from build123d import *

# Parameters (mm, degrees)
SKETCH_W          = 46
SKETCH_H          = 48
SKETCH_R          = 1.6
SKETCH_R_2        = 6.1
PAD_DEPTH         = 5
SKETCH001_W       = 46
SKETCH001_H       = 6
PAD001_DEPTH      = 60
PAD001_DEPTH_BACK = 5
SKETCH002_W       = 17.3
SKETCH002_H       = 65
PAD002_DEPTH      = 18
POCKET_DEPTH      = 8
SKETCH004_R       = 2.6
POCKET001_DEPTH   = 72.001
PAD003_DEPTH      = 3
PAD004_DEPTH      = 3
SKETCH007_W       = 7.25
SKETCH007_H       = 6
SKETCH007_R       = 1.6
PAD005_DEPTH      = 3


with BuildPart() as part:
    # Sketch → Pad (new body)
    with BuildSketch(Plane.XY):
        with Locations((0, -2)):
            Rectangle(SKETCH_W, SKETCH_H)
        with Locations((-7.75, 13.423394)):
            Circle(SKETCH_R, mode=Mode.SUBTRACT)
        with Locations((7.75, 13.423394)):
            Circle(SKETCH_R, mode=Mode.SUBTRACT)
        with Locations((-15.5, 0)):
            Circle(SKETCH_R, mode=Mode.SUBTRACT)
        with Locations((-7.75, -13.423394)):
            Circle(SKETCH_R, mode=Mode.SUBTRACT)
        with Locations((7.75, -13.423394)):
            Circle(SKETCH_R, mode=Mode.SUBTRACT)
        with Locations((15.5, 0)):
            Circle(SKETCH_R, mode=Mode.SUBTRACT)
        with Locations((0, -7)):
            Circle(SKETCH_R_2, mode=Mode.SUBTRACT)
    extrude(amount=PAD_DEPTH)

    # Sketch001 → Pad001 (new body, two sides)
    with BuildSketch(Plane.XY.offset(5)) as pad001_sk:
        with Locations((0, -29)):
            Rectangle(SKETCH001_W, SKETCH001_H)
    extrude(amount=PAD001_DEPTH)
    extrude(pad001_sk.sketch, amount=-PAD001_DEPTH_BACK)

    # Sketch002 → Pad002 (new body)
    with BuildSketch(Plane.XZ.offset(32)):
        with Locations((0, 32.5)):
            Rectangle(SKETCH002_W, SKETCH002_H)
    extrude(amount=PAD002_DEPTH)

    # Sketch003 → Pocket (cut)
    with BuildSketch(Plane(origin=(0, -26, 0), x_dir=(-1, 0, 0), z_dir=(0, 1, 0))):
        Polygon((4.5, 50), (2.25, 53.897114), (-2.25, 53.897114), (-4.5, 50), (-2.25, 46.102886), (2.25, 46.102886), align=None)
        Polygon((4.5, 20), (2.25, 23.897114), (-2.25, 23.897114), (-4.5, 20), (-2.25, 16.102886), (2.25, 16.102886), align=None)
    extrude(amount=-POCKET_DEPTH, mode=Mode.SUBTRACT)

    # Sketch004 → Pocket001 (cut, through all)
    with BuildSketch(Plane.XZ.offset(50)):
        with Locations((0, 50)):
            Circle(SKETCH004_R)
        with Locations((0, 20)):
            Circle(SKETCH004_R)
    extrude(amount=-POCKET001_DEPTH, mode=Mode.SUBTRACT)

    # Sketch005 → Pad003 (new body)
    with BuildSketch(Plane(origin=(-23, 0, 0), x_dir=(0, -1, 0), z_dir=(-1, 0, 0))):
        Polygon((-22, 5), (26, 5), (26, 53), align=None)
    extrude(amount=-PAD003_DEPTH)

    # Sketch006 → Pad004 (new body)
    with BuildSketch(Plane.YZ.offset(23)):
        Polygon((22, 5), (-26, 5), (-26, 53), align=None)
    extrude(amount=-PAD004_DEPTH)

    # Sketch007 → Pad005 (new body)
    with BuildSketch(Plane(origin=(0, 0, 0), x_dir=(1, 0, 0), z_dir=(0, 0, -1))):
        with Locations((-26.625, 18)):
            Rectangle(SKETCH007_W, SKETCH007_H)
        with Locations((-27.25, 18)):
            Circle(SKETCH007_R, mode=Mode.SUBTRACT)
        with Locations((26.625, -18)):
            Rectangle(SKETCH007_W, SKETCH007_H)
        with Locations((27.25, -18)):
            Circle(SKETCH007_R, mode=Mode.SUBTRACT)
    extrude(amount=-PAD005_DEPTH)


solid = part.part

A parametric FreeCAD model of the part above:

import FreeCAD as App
import Part
import Sketcher

V = App.Vector
Q = App.Units.Quantity

doc = App.newDocument("Part")
params = doc.addObject("Spreadsheet::Sheet", "Params")
for row, (alias, value) in enumerate([
    ("sketch1_diameter", "3.2 mm"),
    ("sketch1_diameter2", "12.2 mm"),
    ("sketch1_width", "46 mm"),
    ("sketch1_height", "48 mm"),
    ("pad1_length", "5 mm"),
    ("sketch2_width", "46 mm"),
    ("sketch2_height", "6 mm"),
    ("pad2_length", "60 mm"),
    ("pad2_length2", "5 mm"),
    ("sketch3_height", "65 mm"),
    ("sketch3_width", "17.3 mm"),
    ("pad3_length", "18 mm"),
    ("sketch4_width", "4.5 mm"),
    ("pocket1_length", "8 mm"),
    ("sketch5_diameter", "5.2 mm"),
    ("sketch6_width", "48 mm"),
    ("pad4_length", "3 mm"),
    ("sketch7_width", "48 mm"),
    ("pad5_length", "3 mm"),
    ("sketch8_diameter", "3.2 mm"),
    ("sketch8_height", "6 mm"),
    ("sketch8_width", "7.25 mm"),
    ("pad6_length", "3 mm"),
], start=1):
    params.set(f"A{row}", alias)
    params.set(f"B{row}", "=" + value)
    params.setAlias(f"B{row}", alias)

body = doc.addObject("PartDesign::Body", "Body")

# Sketch on XY plane
sketch1 = body.newObject("Sketcher::SketchObject", "Sketch")
sketch1.AttachmentSupport = (doc.getObject("XY_Plane"), [""])
sketch1.MapMode = "FlatFace"
sketch1.addGeometry([
    Part.LineSegment(V(-23, 22, 0), V(-23, -26, 0)),  # 0
    Part.LineSegment(V(-23, -26, 0), V(23, -26, 0)),  # 1
    Part.LineSegment(V(23, -26, 0), V(23, 22, 0)),  # 2
    Part.LineSegment(V(23, 22, 0), V(-23, 22, 0)),  # 3
    Part.Circle(V(-7.75, -13.423394, 0), V(0, 0, 1), 1.6),  # 4
    Part.Circle(V(7.75, -13.423394, 0), V(0, 0, 1), 1.6),  # 5
    Part.Circle(V(0, -7, 0), V(0, 0, 1), 6.1),  # 6
    Part.Circle(V(-15.5, 0, 0), V(0, 0, 1), 1.6),  # 7
    Part.Circle(V(-7.75, 13.423394, 0), V(0, 0, 1), 1.6),  # 8
    Part.Circle(V(15.5, 0, 0), V(0, 0, 1), 1.6),  # 9
    Part.Circle(V(7.75, 13.423394, 0), V(0, 0, 1), 1.6),  # 10
], False)
sketch1.addConstraint([
    Sketcher.Constraint("Coincident", 0, 2, 1, 1),
    Sketcher.Constraint("Coincident", 1, 2, 2, 1),
    Sketcher.Constraint("Coincident", 2, 2, 3, 1),
    Sketcher.Constraint("Coincident", 3, 2, 0, 1),
    Sketcher.Constraint("Vertical", 0),
    Sketcher.Constraint("Horizontal", 1),
    Sketcher.Constraint("Vertical", 2),
    Sketcher.Constraint("Horizontal", 3),
    Sketcher.Constraint("Equal", 4, 5),
    Sketcher.Constraint("Equal", 5, 7),
    Sketcher.Constraint("Equal", 7, 8),
    Sketcher.Constraint("Equal", 8, 9),
    Sketcher.Constraint("Equal", 9, 10),
    Sketcher.Constraint("Symmetric", 5, 3, 8, 3, -1, 1),
    Sketcher.Constraint("Symmetric", 7, 3, 9, 3, -1, 1),
    Sketcher.Constraint("Symmetric", 4, 3, 10, 3, -1, 1),
    Sketcher.Constraint("Symmetric", 4, 3, 5, 3, -2),
    Sketcher.Constraint("PointOnObject", 6, 3, -2),
    Sketcher.Constraint("PointOnObject", 7, 3, -1),
    Sketcher.Constraint("Diameter", 4, 3.2),
    Sketcher.Constraint("Diameter", 6, 12.2),
    Sketcher.Constraint("DistanceX", 1, 1, 1, 2, 46.0),
    Sketcher.Constraint("DistanceY", 0, 2, 0, 1, 48.0),
    Sketcher.Constraint("DistanceY", 6, 3, -1, 1, 7.0),
    Sketcher.Constraint("DistanceX", 0, 2, -1, 1, 23.0),
    Sketcher.Constraint("DistanceY", 0, 2, -1, 1, 26.0),
    Sketcher.Constraint("DistanceX", 7, 3, 9, 3, 31.0),
    Sketcher.Constraint("DistanceX", 4, 3, 5, 3, 15.5),
    Sketcher.Constraint("DistanceY", 4, 3, 8, 3, 26.846788),
])
sketch1.setExpression("Constraints[19]", "Params.sketch1_diameter")
sketch1.setExpression("Constraints[20]", "Params.sketch1_diameter2")
sketch1.setExpression("Constraints[21]", "Params.sketch1_width")
sketch1.setExpression("Constraints[22]", "Params.sketch1_height")
pad1 = body.newObject("PartDesign::Pad", "Pad")
pad1.Profile = sketch1
pad1.setExpression("Length", "Params.pad1_length")

# Sketch on XY plane
sketch2 = body.newObject("Sketcher::SketchObject", "Sketch001")
sketch2.AttachmentSupport = (doc.getObject("XY_Plane"), [""])
sketch2.MapMode = "FlatFace"
sketch2.AttachmentOffset = App.Placement(V(0, 0, 5), App.Rotation())
sketch2.addGeometry([
    Part.LineSegment(V(-23, -26, 0), V(-23, -32, 0)),
    Part.LineSegment(V(-23, -32, 0), V(23, -32, 0)),
    Part.LineSegment(V(23, -32, 0), V(23, -26, 0)),
    Part.LineSegment(V(23, -26, 0), V(-23, -26, 0)),
], False)
sketch2.addConstraint([
    Sketcher.Constraint("Coincident", 0, 2, 1, 1),
    Sketcher.Constraint("Coincident", 1, 2, 2, 1),
    Sketcher.Constraint("Coincident", 2, 2, 3, 1),
    Sketcher.Constraint("Coincident", 3, 2, 0, 1),
    Sketcher.Constraint("Vertical", 0),
    Sketcher.Constraint("Horizontal", 1),
    Sketcher.Constraint("Vertical", 2),
    Sketcher.Constraint("Horizontal", 3),
    Sketcher.Constraint("DistanceX", 1, 1, 1, 2, 46.0),
    Sketcher.Constraint("DistanceY", 0, 2, 0, 1, 6.0),
    Sketcher.Constraint("DistanceX", 0, 2, -1, 1, 23.0),
    Sketcher.Constraint("DistanceY", 0, 2, -1, 1, 32.0),
])
sketch2.setExpression("Constraints[8]", "Params.sketch2_width")
sketch2.setExpression("Constraints[9]", "Params.sketch2_height")
pad2 = body.newObject("PartDesign::Pad", "Pad001")
pad2.Profile = sketch2
pad2.Type = "TwoLengths"
pad2.setExpression("Length", "Params.pad2_length")
pad2.setExpression("Length2", "Params.pad2_length2")

# Sketch on XZ plane
sketch3 = body.newObject("Sketcher::SketchObject", "Sketch002")
sketch3.AttachmentSupport = (doc.getObject("XZ_Plane"), [""])
sketch3.MapMode = "FlatFace"
sketch3.AttachmentOffset = App.Placement(V(0, 0, 32), App.Rotation())
sketch3.addGeometry([
    Part.LineSegment(V(-8.65, 65, 0), V(-8.65, 0, 0)),
    Part.LineSegment(V(-8.65, 0, 0), V(8.65, 0, 0)),
    Part.LineSegment(V(8.65, 0, 0), V(8.65, 65, 0)),
    Part.LineSegment(V(8.65, 65, 0), V(-8.65, 65, 0)),
], False)
sketch3.addConstraint([
    Sketcher.Constraint("Coincident", 0, 2, 1, 1),
    Sketcher.Constraint("Coincident", 1, 2, 2, 1),
    Sketcher.Constraint("Coincident", 2, 2, 3, 1),
    Sketcher.Constraint("Coincident", 3, 2, 0, 1),
    Sketcher.Constraint("Vertical", 0),
    Sketcher.Constraint("Horizontal", 1),
    Sketcher.Constraint("Vertical", 2),
    Sketcher.Constraint("Horizontal", 3),
    Sketcher.Constraint("Symmetric", 0, 2, 1, 2, -1, 1),
    Sketcher.Constraint("DistanceY", 0, 2, 0, 1, 65.0),
    Sketcher.Constraint("DistanceX", 1, 1, 1, 2, 17.3),
])
sketch3.setExpression("Constraints[9]", "Params.sketch3_height")
sketch3.setExpression("Constraints[10]", "Params.sketch3_width")
pad3 = body.newObject("PartDesign::Pad", "Pad002")
pad3.Profile = sketch3
pad3.setExpression("Length", "Params.pad3_length")

# Sketch on XZ plane
sketch4 = body.newObject("Sketcher::SketchObject", "Sketch003")
sketch4.AttachmentSupport = (doc.getObject("XZ_Plane"), [""])
sketch4.MapMode = "FlatFace"
sketch4.AttachmentOffset = App.Placement(V(0, 0, 26), App.Rotation())
sketch4.addGeometry([
    Part.LineSegment(V(-4.5, 50, 0), V(-2.25, 53.897114, 0)),  # 0
    Part.LineSegment(V(-2.25, 53.897114, 0), V(2.25, 53.897114, 0)),  # 1
    Part.LineSegment(V(2.25, 53.897114, 0), V(4.5, 50, 0)),  # 2
    Part.LineSegment(V(4.5, 50, 0), V(2.25, 46.102886, 0)),  # 3
    Part.LineSegment(V(2.25, 46.102886, 0), V(-2.25, 46.102886, 0)),  # 4
    Part.LineSegment(V(-2.25, 46.102886, 0), V(-4.5, 50, 0)),  # 5
    Part.LineSegment(V(-4.5, 20, 0), V(-2.25, 23.897114, 0)),  # 6
    Part.LineSegment(V(-2.25, 23.897114, 0), V(2.25, 23.897114, 0)),  # 7
    Part.LineSegment(V(2.25, 23.897114, 0), V(4.5, 20, 0)),  # 8
    Part.LineSegment(V(4.5, 20, 0), V(2.25, 16.102886, 0)),  # 9
    Part.LineSegment(V(2.25, 16.102886, 0), V(-2.25, 16.102886, 0)),  # 10
    Part.LineSegment(V(-2.25, 16.102886, 0), V(-4.5, 20, 0)),  # 11
], False)
sketch4.addConstraint([
    Sketcher.Constraint("Coincident", 0, 2, 1, 1),
    Sketcher.Constraint("Coincident", 1, 2, 2, 1),
    Sketcher.Constraint("Coincident", 2, 2, 3, 1),
    Sketcher.Constraint("Coincident", 3, 2, 4, 1),
    Sketcher.Constraint("Coincident", 4, 2, 5, 1),
    Sketcher.Constraint("Coincident", 5, 2, 0, 1),
    Sketcher.Constraint("Coincident", 6, 2, 7, 1),
    Sketcher.Constraint("Coincident", 7, 2, 8, 1),
    Sketcher.Constraint("Coincident", 8, 2, 9, 1),
    Sketcher.Constraint("Coincident", 9, 2, 10, 1),
    Sketcher.Constraint("Coincident", 10, 2, 11, 1),
    Sketcher.Constraint("Coincident", 11, 2, 6, 1),
    Sketcher.Constraint("Horizontal", 1),
    Sketcher.Constraint("Horizontal", 4),
    Sketcher.Constraint("Horizontal", 7),
    Sketcher.Constraint("Horizontal", 10),
    Sketcher.Constraint("Symmetric", 2, 2, 5, 2, -2),
    Sketcher.Constraint("Symmetric", 8, 2, 11, 2, -2),
    Sketcher.Constraint("Parallel", 0, 3),
    Sketcher.Constraint("Parallel", 2, 5),
    Sketcher.Constraint("Parallel", 3, 6),
    Sketcher.Constraint("Parallel", 5, 8),
    Sketcher.Constraint("Parallel", 6, 9),
    Sketcher.Constraint("Parallel", 8, 11),
    Sketcher.Constraint("Vertical", 1, 2, 3, 2),
    Sketcher.Constraint("Vertical", 0, 2, 4, 2),
    Sketcher.Constraint("Vertical", 4, 2, 6, 2),
    Sketcher.Constraint("Vertical", 2, 2, 8, 2),
    Sketcher.Constraint("Vertical", 7, 2, 9, 2),
    Sketcher.Constraint("Angle", 0, Q("59.999998 deg")),
    Sketcher.Constraint("DistanceX", 1, 1, 1, 2, 4.5),
    Sketcher.Constraint("DistanceY", -1, 1, 2, 2, 50.0),
    Sketcher.Constraint("DistanceY", -1, 1, 8, 2, 20.0),
    Sketcher.Constraint("DistanceX", 5, 2, 2, 2, 9.0),
])
sketch4.setExpression("Constraints[30]", "Params.sketch4_width")
pocket1 = body.newObject("PartDesign::Pocket", "Pocket")
pocket1.Profile = sketch4
pocket1.setExpression("Length", "Params.pocket1_length")
pocket1.Reversed = True

# Sketch on XZ plane
sketch5 = body.newObject("Sketcher::SketchObject", "Sketch004")
sketch5.AttachmentSupport = (doc.getObject("XZ_Plane"), [""])
sketch5.MapMode = "FlatFace"
sketch5.AttachmentOffset = App.Placement(V(0, 0, 50), App.Rotation())
sketch5.addGeometry([
    Part.Circle(V(0, 50, 0), V(0, 0, 1), 2.6),
    Part.Circle(V(0, 20, 0), V(0, 0, 1), 2.6),
], False)
sketch5.addConstraint([
    Sketcher.Constraint("Equal", 0, 1),
    Sketcher.Constraint("PointOnObject", 0, 3, -2),
    Sketcher.Constraint("PointOnObject", 1, 3, -2),
    Sketcher.Constraint("Diameter", 0, 5.2),
    Sketcher.Constraint("DistanceY", -1, 1, 0, 3, 50.0),
    Sketcher.Constraint("DistanceY", -1, 1, 1, 3, 20.0),
])
sketch5.setExpression("Constraints[3]", "Params.sketch5_diameter")
pocket2 = body.newObject("PartDesign::Pocket", "Pocket001")
pocket2.Profile = sketch5
pocket2.Type = "ThroughAll"

# Sketch on YZ plane
sketch6 = body.newObject("Sketcher::SketchObject", "Sketch005")
sketch6.AttachmentSupport = (doc.getObject("YZ_Plane"), [""])
sketch6.MapMode = "FlatFace"
sketch6.AttachmentOffset = App.Placement(V(0, 0, -23), App.Rotation())
sketch6.addGeometry([
    Part.LineSegment(V(22, 5, 0), V(-26, 5, 0)),
    Part.LineSegment(V(-26, 5, 0), V(-26, 53, 0)),
    Part.LineSegment(V(-26, 53, 0), V(22, 5, 0)),
], False)
sketch6.addConstraint([
    Sketcher.Constraint("Coincident", 0, 2, 1, 1),
    Sketcher.Constraint("Coincident", 1, 2, 2, 1),
    Sketcher.Constraint("Coincident", 2, 2, 0, 1),
    Sketcher.Constraint("Horizontal", 0),
    Sketcher.Constraint("Vertical", 1),
    Sketcher.Constraint("Equal", 0, 1),
    Sketcher.Constraint("DistanceX", 0, 2, 0, 1, 48.0),
    Sketcher.Constraint("DistanceX", 0, 2, -1, 1, 26.0),
    Sketcher.Constraint("DistanceY", -1, 1, 0, 2, 5.0),
])
sketch6.setExpression("Constraints[6]", "Params.sketch6_width")
pad4 = body.newObject("PartDesign::Pad", "Pad003")
pad4.Profile = sketch6
pad4.setExpression("Length", "Params.pad4_length")

# Sketch on YZ plane
sketch7 = body.newObject("Sketcher::SketchObject", "Sketch006")
sketch7.AttachmentSupport = (doc.getObject("YZ_Plane"), [""])
sketch7.MapMode = "FlatFace"
sketch7.AttachmentOffset = App.Placement(V(0, 0, 23), App.Rotation())
sketch7.addGeometry([
    Part.LineSegment(V(-26, 5, 0), V(22, 5, 0)),
    Part.LineSegment(V(22, 5, 0), V(-26, 53, 0)),
    Part.LineSegment(V(-26, 53, 0), V(-26, 5, 0)),
], False)
sketch7.addConstraint([
    Sketcher.Constraint("Coincident", 0, 2, 1, 1),
    Sketcher.Constraint("Coincident", 1, 2, 2, 1),
    Sketcher.Constraint("Coincident", 2, 2, 0, 1),
    Sketcher.Constraint("Horizontal", 0),
    Sketcher.Constraint("Vertical", 2),
    Sketcher.Constraint("Equal", 0, 2),
    Sketcher.Constraint("DistanceX", 0, 1, 0, 2, 48.0),
    Sketcher.Constraint("DistanceX", -1, 1, 0, 2, 22.0),
    Sketcher.Constraint("DistanceY", -1, 1, 0, 2, 5.0),
])
sketch7.setExpression("Constraints[6]", "Params.sketch7_width")
pad5 = body.newObject("PartDesign::Pad", "Pad004")
pad5.Profile = sketch7
pad5.setExpression("Length", "Params.pad5_length")
pad5.Reversed = True

# Sketch on XY plane
sketch8 = body.newObject("Sketcher::SketchObject", "Sketch007")
sketch8.AttachmentSupport = (doc.getObject("XY_Plane"), [""])
sketch8.MapMode = "FlatFace"
sketch8.addGeometry([
    Part.LineSegment(V(-30.25, -21, 0), V(-30.25, -15, 0)),  # 0
    Part.LineSegment(V(-30.25, -15, 0), V(-23, -15, 0)),  # 1
    Part.LineSegment(V(-23, -15, 0), V(-23, -21, 0)),  # 2
    Part.LineSegment(V(-23, -21, 0), V(-30.25, -21, 0)),  # 3
    Part.Circle(V(-27.25, -18, 0), V(0, 0, 1), 1.6),  # 4
    Part.LineSegment(V(23, 15, 0), V(23, 21, 0)),  # 5
    Part.LineSegment(V(23, 21, 0), V(30.25, 21, 0)),  # 6
    Part.LineSegment(V(30.25, 21, 0), V(30.25, 15, 0)),  # 7
    Part.LineSegment(V(30.25, 15, 0), V(23, 15, 0)),  # 8
    Part.Circle(V(27.25, 18, 0), V(0, 0, 1), 1.6),  # 9
], False)
sketch8.addConstraint([
    Sketcher.Constraint("Coincident", 0, 2, 1, 1),
    Sketcher.Constraint("Coincident", 1, 2, 2, 1),
    Sketcher.Constraint("Coincident", 2, 2, 3, 1),
    Sketcher.Constraint("Coincident", 3, 2, 0, 1),
    Sketcher.Constraint("Coincident", 5, 2, 6, 1),
    Sketcher.Constraint("Coincident", 6, 2, 7, 1),
    Sketcher.Constraint("Coincident", 7, 2, 8, 1),
    Sketcher.Constraint("Coincident", 8, 2, 5, 1),
    Sketcher.Constraint("Vertical", 0),
    Sketcher.Constraint("Horizontal", 1),
    Sketcher.Constraint("Vertical", 2),
    Sketcher.Constraint("Horizontal", 3),
    Sketcher.Constraint("Vertical", 5),
    Sketcher.Constraint("Horizontal", 6),
    Sketcher.Constraint("Vertical", 7),
    Sketcher.Constraint("Horizontal", 8),
    Sketcher.Constraint("Equal", 4, 9),
    Sketcher.Constraint("Symmetric", 4, 3, 9, 3, -1, 1),
    Sketcher.Constraint("Symmetric", 2, 2, 5, 2, -1, 1),
    Sketcher.Constraint("Symmetric", 0, 2, 7, 2, -1, 1),
    Sketcher.Constraint("Diameter", 4, 3.2),
    Sketcher.Constraint("DistanceY", 0, 1, 0, 2, 6.0),
    Sketcher.Constraint("DistanceY", 4, 3, -1, 1, 18.0),
    Sketcher.Constraint("DistanceY", 0, 2, -1, 1, 15.0),
    Sketcher.Constraint("DistanceX", 1, 2, -1, 1, 23.0),
    Sketcher.Constraint("DistanceX", 0, 2, 4, 3, 3.0),
    Sketcher.Constraint("DistanceX", 1, 1, 1, 2, 7.25),
])
sketch8.setExpression("Constraints[20]", "Params.sketch8_diameter")
sketch8.setExpression("Constraints[21]", "Params.sketch8_height")
sketch8.setExpression("Constraints[26]", "Params.sketch8_width")
pad6 = body.newObject("PartDesign::Pad", "Pad005")
pad6.Profile = sketch8
pad6.setExpression("Length", "Params.pad6_length")

doc.recompute()
